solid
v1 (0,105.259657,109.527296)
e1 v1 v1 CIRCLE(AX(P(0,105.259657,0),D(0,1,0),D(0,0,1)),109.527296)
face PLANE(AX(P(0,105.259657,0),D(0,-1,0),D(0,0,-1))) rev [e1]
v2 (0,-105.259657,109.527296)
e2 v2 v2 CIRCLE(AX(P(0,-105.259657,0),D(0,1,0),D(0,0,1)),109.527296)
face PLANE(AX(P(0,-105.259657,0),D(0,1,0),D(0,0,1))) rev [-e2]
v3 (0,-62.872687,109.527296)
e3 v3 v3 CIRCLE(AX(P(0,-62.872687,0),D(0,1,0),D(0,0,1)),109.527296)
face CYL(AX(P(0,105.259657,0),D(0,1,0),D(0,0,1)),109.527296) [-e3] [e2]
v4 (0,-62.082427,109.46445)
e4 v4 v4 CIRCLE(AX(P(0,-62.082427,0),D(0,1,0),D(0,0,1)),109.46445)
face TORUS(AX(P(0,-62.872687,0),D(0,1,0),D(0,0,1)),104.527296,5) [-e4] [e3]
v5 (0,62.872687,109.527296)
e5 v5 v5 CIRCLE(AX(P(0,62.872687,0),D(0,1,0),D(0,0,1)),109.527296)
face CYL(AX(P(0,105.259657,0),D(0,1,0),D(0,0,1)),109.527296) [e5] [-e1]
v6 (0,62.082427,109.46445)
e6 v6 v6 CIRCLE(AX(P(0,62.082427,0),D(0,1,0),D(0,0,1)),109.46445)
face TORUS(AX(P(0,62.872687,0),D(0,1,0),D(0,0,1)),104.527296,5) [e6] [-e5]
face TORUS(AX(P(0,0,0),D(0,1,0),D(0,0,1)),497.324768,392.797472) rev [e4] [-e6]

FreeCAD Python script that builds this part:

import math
import FreeCAD as App
import Part
import Sketcher

V = App.Vector
Q = App.Units.Quantity

doc = App.newDocument("Part")
body = doc.addObject("PartDesign::Body", "Body")

sketch1 = body.newObject("Sketcher::SketchObject", "Sketch")
sketch1.AttachmentSupport = (doc.getObject("XY_Plane"), [""])
sketch1.MapMode = "FlatFace"
sketch1.addGeometry(Part.LineSegment(V(109.5, -105.3, 0), V(109.5, -62.9, 0)), False)
sketch1.addGeometry(Part.ArcOfCircle(Part.Circle(V(104.5, -62.9, 0), V(0, 0, 1), 5), math.radians(0), math.radians(9.09)), False)
sketch1.addGeometry(Part.ArcOfCircle(Part.Circle(V(497.3, 0, 0), V(0, 0, 1), 392.8), math.radians(170.91), math.radians(189.09)), False)
sketch1.addGeometry(Part.ArcOfCircle(Part.Circle(V(104.5, 62.9, 0), V(0, 0, 1), 5), math.radians(-9.09), math.radians(0)), False)
sketch1.addGeometry(Part.LineSegment(V(109.5, 62.9, 0), V(109.5, 105.3, 0)), False)
sketch1.addGeometry(Part.LineSegment(V(109.5, 105.3, 0), V(0, 105.3, 0)), False)
sketch1.addGeometry(Part.LineSegment(V(0, 105.3, 0), V(0, -105.3, 0)), False)
sketch1.addGeometry(Part.LineSegment(V(0, -105.3, 0), V(109.5, -105.3, 0)), False)
sketch1.addConstraint(Sketcher.Constraint("Tangent", 0, 2, 1, 1))
sketch1.addConstraint(Sketcher.Constraint("Tangent", 1, 2, 2, 2))
sketch1.addConstraint(Sketcher.Constraint("Tangent", 2, 1, 3, 1))
sketch1.addConstraint(Sketcher.Constraint("Tangent", 3, 2, 4, 1))
sketch1.addConstraint(Sketcher.Constraint("Coincident", 4, 2, 5, 1))
sketch1.addConstraint(Sketcher.Constraint("Coincident", 5, 2, 6, 1))
sketch1.addConstraint(Sketcher.Constraint("Coincident", 6, 2, 7, 1))
sketch1.addConstraint(Sketcher.Constraint("Coincident", 7, 2, 0, 1))
sketch1.addConstraint(Sketcher.Constraint("Vertical", 0))
sketch1.addConstraint(Sketcher.Constraint("Vertical", 4))
sketch1.addConstraint(Sketcher.Constraint("Horizontal", 5))
sketch1.addConstraint(Sketcher.Constraint("Vertical", 6))
sketch1.addConstraint(Sketcher.Constraint("Horizontal", 7))
sketch1.addConstraint(Sketcher.Constraint("Equal", 1, 3))
sketch1.addConstraint(Sketcher.Constraint("Symmetric", 5, 2, 6, 2, -1, 1))
sketch1.addConstraint(Sketcher.Constraint("Symmetric", 1, 3, 3, 3, -1))
sketch1.addConstraint(Sketcher.Constraint("Radius", 1, Q("5 mm")))
sketch1.addConstraint(Sketcher.Constraint("Radius", 2, Q("392.797472 mm")))
sketch1.addConstraint(Sketcher.Constraint("DistanceY", 0, 1, 0, 2, Q("42.386971 mm")))
sketch1.addConstraint(Sketcher.Constraint("DistanceX", 5, 2, 5, 1, Q("109.527296 mm")))
sketch1.addConstraint(Sketcher.Constraint("DistanceY", 6, 2, 6, 1, Q("210.519315 mm")))
revolution = body.newObject("PartDesign::Revolution", "Revolution")
revolution.Profile = sketch1
revolution.ReferenceAxis = (sketch1, ["V_Axis"])
revolution.Angle = 360

doc.recompute()
